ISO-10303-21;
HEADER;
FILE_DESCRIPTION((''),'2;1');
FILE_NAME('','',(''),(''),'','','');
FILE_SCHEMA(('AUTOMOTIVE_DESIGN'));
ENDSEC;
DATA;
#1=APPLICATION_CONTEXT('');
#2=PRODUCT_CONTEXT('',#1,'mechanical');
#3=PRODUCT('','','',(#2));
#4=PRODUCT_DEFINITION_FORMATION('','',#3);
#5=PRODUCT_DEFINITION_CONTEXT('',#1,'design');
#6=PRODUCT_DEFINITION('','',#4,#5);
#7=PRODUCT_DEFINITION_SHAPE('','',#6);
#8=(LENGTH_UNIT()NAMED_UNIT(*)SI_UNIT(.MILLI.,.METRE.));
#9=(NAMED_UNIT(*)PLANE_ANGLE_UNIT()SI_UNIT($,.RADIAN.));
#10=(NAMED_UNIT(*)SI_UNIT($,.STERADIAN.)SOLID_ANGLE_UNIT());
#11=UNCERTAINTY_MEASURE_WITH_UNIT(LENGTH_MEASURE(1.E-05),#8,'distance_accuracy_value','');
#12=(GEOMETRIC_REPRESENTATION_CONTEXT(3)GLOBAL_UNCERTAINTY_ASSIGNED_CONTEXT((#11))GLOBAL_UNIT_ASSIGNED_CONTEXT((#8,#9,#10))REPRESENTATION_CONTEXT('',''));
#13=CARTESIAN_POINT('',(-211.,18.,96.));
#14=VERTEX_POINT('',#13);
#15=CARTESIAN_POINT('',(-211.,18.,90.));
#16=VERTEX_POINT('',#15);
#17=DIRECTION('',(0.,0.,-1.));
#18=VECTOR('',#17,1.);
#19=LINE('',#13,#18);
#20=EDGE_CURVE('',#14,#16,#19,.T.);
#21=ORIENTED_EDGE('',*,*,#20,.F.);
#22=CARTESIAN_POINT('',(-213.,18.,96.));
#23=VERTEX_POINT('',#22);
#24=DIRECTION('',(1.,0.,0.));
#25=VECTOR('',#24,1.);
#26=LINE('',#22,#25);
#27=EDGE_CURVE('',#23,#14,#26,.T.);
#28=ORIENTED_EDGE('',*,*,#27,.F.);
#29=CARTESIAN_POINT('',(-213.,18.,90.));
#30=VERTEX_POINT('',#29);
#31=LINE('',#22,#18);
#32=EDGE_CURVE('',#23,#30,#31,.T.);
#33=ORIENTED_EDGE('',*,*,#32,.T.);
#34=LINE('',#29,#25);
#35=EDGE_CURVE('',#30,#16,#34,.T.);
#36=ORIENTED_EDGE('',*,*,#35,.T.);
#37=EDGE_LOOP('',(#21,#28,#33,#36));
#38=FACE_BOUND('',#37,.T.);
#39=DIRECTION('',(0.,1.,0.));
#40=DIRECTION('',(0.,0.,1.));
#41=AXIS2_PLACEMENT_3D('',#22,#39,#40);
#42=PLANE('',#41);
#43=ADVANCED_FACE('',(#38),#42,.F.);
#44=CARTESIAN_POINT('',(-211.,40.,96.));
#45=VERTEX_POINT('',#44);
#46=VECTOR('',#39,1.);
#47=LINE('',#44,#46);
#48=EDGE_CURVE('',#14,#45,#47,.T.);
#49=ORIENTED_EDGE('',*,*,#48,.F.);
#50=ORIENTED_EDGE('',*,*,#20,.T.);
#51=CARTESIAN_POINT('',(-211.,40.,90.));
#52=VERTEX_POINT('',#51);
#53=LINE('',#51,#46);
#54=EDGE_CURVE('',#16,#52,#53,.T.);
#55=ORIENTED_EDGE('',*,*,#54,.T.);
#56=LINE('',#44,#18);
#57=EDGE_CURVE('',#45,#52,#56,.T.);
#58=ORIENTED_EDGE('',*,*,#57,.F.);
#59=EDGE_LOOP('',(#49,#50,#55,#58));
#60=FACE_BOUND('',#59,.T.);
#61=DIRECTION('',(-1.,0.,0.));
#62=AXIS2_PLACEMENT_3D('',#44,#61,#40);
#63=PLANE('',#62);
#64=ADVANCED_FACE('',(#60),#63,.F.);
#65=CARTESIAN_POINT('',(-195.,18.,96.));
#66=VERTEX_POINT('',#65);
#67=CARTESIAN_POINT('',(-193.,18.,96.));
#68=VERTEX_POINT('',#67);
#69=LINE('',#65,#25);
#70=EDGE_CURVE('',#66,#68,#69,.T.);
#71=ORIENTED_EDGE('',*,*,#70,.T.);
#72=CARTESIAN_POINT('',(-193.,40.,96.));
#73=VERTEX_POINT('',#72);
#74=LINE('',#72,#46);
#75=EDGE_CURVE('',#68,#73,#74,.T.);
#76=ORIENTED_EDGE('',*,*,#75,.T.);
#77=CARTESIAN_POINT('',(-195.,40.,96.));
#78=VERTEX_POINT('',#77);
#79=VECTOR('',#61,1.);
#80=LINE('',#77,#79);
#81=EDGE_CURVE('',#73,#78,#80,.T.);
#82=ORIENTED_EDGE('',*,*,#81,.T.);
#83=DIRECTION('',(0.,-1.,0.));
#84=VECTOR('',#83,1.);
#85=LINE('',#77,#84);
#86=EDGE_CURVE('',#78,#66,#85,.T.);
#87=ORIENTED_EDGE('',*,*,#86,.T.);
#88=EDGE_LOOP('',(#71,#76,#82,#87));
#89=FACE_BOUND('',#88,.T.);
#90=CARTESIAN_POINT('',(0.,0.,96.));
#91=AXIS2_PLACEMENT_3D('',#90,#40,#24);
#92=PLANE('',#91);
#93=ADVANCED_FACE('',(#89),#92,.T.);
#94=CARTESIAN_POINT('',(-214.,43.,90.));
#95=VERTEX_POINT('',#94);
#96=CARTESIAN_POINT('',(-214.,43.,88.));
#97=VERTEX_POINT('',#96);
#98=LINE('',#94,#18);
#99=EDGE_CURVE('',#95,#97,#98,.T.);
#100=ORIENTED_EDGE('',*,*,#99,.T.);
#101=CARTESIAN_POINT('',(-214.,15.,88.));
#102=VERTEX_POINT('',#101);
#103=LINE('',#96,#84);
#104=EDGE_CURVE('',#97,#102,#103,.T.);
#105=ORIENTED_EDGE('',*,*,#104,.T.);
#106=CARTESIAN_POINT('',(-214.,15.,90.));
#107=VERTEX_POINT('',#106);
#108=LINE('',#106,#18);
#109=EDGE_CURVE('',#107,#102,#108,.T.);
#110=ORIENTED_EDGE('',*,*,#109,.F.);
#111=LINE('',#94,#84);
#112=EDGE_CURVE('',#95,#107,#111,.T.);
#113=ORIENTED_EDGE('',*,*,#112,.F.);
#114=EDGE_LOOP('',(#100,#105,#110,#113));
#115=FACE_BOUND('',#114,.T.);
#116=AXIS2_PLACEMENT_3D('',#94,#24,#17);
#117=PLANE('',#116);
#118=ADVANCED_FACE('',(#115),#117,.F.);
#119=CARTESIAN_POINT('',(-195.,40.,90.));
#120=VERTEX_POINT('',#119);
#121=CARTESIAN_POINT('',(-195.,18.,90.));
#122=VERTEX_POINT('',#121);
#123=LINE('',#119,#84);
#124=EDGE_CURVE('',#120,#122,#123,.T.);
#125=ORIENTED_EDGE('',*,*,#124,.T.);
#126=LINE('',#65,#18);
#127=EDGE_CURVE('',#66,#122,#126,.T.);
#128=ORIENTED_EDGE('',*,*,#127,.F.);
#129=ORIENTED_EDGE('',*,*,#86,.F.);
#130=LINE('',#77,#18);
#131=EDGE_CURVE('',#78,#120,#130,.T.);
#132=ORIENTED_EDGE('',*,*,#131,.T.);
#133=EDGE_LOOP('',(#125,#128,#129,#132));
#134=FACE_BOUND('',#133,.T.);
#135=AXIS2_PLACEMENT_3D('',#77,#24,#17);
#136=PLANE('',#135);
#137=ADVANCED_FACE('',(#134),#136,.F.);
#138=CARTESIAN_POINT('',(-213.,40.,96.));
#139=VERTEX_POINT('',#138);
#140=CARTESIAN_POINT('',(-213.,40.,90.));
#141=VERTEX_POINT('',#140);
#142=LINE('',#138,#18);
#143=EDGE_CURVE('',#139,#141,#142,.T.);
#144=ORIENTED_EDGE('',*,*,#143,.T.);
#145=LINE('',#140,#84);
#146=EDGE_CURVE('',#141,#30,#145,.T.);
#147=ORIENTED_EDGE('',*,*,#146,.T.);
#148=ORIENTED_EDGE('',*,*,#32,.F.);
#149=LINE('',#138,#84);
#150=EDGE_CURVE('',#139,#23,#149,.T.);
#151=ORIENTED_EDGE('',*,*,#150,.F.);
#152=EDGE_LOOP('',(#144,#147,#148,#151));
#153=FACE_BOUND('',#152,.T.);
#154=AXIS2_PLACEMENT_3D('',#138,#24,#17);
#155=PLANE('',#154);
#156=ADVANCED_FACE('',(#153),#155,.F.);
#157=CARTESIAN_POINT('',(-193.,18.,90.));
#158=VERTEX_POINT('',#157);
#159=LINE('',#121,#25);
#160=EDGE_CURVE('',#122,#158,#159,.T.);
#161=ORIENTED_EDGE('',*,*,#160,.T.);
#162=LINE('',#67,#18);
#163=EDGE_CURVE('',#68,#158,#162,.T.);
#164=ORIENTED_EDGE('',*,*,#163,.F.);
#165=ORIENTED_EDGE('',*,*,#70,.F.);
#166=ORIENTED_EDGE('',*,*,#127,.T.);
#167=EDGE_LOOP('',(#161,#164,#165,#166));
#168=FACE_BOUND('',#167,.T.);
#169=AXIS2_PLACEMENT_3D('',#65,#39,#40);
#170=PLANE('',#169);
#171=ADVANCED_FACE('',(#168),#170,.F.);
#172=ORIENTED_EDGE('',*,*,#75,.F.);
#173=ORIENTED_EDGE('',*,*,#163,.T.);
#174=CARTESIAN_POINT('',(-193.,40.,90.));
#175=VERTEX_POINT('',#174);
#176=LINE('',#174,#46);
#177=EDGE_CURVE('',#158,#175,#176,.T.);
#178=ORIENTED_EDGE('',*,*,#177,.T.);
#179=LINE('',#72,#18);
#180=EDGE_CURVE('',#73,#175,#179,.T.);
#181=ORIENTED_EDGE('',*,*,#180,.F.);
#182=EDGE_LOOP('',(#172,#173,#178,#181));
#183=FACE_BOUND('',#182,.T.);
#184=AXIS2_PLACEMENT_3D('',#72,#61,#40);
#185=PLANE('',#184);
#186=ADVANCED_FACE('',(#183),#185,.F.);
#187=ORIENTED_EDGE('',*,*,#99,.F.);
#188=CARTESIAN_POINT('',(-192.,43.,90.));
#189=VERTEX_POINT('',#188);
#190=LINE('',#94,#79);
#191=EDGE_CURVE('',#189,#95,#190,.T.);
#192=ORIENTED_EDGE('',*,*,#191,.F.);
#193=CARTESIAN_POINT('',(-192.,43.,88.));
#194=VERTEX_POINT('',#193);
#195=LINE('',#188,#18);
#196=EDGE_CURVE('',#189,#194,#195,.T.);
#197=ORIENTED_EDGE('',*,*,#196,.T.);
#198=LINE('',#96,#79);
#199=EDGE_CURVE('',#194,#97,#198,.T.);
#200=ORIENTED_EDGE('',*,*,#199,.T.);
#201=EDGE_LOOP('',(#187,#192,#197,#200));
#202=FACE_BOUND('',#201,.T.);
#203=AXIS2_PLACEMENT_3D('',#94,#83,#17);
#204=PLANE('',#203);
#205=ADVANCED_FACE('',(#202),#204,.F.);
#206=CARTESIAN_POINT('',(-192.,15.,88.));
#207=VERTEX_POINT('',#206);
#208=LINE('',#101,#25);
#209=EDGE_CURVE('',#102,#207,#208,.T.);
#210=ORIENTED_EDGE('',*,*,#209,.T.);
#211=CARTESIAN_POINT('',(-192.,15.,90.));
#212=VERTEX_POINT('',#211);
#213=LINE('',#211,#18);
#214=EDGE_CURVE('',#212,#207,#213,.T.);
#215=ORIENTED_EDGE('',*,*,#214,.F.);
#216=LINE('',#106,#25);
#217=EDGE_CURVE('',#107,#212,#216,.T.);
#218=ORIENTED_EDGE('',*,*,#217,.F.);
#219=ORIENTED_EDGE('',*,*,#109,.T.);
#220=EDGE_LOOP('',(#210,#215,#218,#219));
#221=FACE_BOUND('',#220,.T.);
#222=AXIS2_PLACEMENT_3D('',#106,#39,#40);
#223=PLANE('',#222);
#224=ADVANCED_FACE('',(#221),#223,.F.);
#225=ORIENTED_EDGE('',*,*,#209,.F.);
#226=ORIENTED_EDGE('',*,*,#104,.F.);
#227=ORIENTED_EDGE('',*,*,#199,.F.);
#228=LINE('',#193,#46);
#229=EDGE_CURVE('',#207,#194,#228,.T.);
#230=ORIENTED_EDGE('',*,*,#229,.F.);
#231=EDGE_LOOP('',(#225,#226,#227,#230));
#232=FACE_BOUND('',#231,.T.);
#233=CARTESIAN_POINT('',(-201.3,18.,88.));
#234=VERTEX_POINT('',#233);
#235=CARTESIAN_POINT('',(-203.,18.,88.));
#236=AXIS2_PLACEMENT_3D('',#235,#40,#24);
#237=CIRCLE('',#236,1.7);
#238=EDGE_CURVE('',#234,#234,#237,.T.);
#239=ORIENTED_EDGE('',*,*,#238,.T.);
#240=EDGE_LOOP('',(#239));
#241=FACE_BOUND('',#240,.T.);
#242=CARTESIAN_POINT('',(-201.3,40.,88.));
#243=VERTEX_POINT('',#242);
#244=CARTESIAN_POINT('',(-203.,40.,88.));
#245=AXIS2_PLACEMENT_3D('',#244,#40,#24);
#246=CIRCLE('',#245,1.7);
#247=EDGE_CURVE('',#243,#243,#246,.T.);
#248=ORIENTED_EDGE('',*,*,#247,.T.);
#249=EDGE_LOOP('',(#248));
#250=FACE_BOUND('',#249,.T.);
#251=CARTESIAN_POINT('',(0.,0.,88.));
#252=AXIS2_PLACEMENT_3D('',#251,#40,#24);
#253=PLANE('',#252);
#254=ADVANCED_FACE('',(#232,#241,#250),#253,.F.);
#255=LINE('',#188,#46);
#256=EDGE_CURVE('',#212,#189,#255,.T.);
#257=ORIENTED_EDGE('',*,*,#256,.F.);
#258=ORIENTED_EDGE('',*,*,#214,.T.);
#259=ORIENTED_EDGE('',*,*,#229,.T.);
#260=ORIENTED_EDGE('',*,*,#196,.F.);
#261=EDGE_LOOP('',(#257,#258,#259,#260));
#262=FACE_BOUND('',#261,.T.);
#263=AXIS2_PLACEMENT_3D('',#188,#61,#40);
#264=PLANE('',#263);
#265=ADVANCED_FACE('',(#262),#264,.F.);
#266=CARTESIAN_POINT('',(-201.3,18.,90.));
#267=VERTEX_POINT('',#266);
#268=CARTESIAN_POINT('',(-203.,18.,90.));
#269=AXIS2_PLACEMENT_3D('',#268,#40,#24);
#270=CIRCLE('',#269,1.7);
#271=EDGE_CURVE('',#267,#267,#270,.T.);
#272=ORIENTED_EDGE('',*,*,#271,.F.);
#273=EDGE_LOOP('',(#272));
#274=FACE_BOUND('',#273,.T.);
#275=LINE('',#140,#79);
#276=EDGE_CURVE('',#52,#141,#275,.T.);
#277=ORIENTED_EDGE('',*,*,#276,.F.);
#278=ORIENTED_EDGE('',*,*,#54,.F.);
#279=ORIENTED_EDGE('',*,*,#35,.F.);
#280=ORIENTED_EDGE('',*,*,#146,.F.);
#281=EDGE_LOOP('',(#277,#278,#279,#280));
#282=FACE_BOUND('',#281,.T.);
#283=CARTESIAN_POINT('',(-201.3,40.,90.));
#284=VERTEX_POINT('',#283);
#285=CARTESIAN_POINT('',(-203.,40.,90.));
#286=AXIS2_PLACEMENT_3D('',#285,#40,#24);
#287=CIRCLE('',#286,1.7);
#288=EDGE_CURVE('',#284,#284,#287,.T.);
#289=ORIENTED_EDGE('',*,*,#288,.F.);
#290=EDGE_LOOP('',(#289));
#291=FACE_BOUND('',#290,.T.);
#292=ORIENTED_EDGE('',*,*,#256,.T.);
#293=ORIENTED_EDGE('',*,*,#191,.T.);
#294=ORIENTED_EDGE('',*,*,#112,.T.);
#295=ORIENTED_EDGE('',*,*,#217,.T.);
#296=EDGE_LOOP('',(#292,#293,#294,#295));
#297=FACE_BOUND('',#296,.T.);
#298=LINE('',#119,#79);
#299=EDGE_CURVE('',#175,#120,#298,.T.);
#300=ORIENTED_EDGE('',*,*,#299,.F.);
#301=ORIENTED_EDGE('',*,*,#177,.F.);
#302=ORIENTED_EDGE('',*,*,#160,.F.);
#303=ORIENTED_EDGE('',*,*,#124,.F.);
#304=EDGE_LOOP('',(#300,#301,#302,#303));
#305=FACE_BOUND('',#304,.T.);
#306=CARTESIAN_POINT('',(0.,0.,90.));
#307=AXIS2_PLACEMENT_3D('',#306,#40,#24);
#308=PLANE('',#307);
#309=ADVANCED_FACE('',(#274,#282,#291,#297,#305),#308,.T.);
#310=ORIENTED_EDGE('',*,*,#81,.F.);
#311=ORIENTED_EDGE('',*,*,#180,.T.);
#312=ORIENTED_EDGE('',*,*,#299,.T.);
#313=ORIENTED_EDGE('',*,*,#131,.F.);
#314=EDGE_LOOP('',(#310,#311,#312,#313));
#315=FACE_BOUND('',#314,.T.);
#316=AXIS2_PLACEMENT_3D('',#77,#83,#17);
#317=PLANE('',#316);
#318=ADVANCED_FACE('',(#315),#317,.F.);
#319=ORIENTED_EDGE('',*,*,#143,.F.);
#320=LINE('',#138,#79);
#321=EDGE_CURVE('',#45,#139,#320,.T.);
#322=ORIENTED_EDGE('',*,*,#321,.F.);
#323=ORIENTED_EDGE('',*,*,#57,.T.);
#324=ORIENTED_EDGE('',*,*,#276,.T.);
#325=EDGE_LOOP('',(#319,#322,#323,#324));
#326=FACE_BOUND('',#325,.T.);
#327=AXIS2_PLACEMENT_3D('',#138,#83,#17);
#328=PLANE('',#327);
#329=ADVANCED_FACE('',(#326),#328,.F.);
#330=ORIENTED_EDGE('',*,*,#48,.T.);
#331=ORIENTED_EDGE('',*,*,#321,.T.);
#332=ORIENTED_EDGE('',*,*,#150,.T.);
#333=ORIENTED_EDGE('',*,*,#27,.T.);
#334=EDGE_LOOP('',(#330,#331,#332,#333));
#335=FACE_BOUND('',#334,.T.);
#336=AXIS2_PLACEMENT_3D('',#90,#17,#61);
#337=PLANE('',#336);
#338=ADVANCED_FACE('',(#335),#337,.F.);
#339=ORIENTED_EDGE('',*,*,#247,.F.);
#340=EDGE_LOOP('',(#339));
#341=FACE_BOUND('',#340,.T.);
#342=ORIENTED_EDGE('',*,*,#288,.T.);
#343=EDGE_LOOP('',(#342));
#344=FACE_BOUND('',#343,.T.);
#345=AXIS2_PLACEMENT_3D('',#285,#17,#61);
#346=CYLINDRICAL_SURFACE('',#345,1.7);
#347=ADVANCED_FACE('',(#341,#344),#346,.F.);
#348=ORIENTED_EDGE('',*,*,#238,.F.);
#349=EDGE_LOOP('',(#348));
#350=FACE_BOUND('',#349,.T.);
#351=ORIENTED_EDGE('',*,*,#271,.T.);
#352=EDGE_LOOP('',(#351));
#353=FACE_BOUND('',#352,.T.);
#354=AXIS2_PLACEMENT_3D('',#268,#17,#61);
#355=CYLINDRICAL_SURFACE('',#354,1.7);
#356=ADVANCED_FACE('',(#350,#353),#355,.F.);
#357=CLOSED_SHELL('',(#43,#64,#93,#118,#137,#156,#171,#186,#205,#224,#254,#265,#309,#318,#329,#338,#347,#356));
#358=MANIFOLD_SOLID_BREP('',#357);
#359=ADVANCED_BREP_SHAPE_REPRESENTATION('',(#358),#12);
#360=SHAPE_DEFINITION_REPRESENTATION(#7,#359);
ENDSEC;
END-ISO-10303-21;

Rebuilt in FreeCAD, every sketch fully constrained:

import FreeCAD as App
import Part
import Sketcher

V = App.Vector
Q = App.Units.Quantity

doc = App.newDocument("Part")
body = doc.addObject("PartDesign::Body", "Body")

# Sketch on XY plane
sketch1 = body.newObject("Sketcher::SketchObject", "Sketch")
sketch1.AttachmentSupport = (doc.getObject("XY_Plane"), [""])
sketch1.MapMode = "FlatFace"
sketch1.AttachmentOffset = App.Placement(V(0, 0, 88), App.Rotation())
sketch1.addGeometry([
    Part.LineSegment(V(-214, 43, 0), V(-214, 15, 0)),  # 0
    Part.LineSegment(V(-214, 15, 0), V(-192, 15, 0)),  # 1
    Part.LineSegment(V(-192, 15, 0), V(-192, 43, 0)),  # 2
    Part.LineSegment(V(-192, 43, 0), V(-214, 43, 0)),  # 3
    Part.Circle(V(-203, 18, 0), V(0, 0, 1), 1.7),  # 4
    Part.Circle(V(-203, 40, 0), V(0, 0, 1), 1.7),  # 5
], False)
sketch1.addConstraint([
    Sketcher.Constraint("Coincident", 0, 2, 1, 1),
    Sketcher.Constraint("Coincident", 1, 2, 2, 1),
    Sketcher.Constraint("Coincident", 2, 2, 3, 1),
    Sketcher.Constraint("Coincident", 3, 2, 0, 1),
    Sketcher.Constraint("Vertical", 0),
    Sketcher.Constraint("Horizontal", 1),
    Sketcher.Constraint("Vertical", 2),
    Sketcher.Constraint("Horizontal", 3),
    Sketcher.Constraint("Equal", 4, 5),
    Sketcher.Constraint("Vertical", 4, 3, 5, 3),
    Sketcher.Constraint("Diameter", 4, Q("3.4 mm")),
    Sketcher.Constraint("DistanceX", 1, 1, 1, 2, Q("22 mm")),
    Sketcher.Constraint("DistanceY", 0, 2, 0, 1, Q("28 mm")),
    Sketcher.Constraint("DistanceX", 4, 3, -1, 1, Q("203 mm")),
    Sketcher.Constraint("DistanceY", -1, 1, 4, 3, Q("18 mm")),
    Sketcher.Constraint("DistanceY", -1, 1, 5, 3, Q("40 mm")),
    Sketcher.Constraint("DistanceX", 0, 2, -1, 1, Q("214 mm")),
    Sketcher.Constraint("DistanceY", -1, 1, 0, 2, Q("15 mm")),
])
pad1 = body.newObject("PartDesign::Pad", "Pad")
pad1.Profile = sketch1
pad1.Length = 2

# Sketch on XY plane
sketch2 = body.newObject("Sketcher::SketchObject", "Sketch001")
sketch2.AttachmentSupport = (doc.getObject("XY_Plane"), [""])
sketch2.MapMode = "FlatFace"
sketch2.AttachmentOffset = App.Placement(V(0, 0, 90), App.Rotation())
sketch2.addGeometry([
    Part.LineSegment(V(-195, 40, 0), V(-195, 18, 0)),  # 0
    Part.LineSegment(V(-195, 18, 0), V(-193, 18, 0)),  # 1
    Part.LineSegment(V(-193, 18, 0), V(-193, 40, 0)),  # 2
    Part.LineSegment(V(-193, 40, 0), V(-195, 40, 0)),  # 3
    Part.LineSegment(V(-213, 40, 0), V(-213, 18, 0)),  # 4
    Part.LineSegment(V(-213, 18, 0), V(-211, 18, 0)),  # 5
    Part.LineSegment(V(-211, 18, 0), V(-211, 40, 0)),  # 6
    Part.LineSegment(V(-211, 40, 0), V(-213, 40, 0)),  # 7
], False)
sketch2.addConstraint([
    Sketcher.Constraint("Coincident", 0, 2, 1, 1),
    Sketcher.Constraint("Coincident", 1, 2, 2, 1),
    Sketcher.Constraint("Coincident", 2, 2, 3, 1),
    Sketcher.Constraint("Coincident", 3, 2, 0, 1),
    Sketcher.Constraint("Coincident", 4, 2, 5, 1),
    Sketcher.Constraint("Coincident", 5, 2, 6, 1),
    Sketcher.Constraint("Coincident", 6, 2, 7, 1),
    Sketcher.Constraint("Coincident", 7, 2, 4, 1),
    Sketcher.Constraint("Vertical", 0),
    Sketcher.Constraint("Horizontal", 1),
    Sketcher.Constraint("Vertical", 2),
    Sketcher.Constraint("Horizontal", 3),
    Sketcher.Constraint("Vertical", 4),
    Sketcher.Constraint("Horizontal", 5),
    Sketcher.Constraint("Vertical", 6),
    Sketcher.Constraint("Horizontal", 7),
    Sketcher.Constraint("Horizontal", 1, 2, 4, 2),
    Sketcher.Constraint("Horizontal", 3, 2, 6, 2),
    Sketcher.Constraint("Equal", 3, 5),
    Sketcher.Constraint("DistanceX", 1, 1, 1, 2, Q("2 mm")),
    Sketcher.Constraint("DistanceY", 0, 2, 0, 1, Q("22 mm")),
    Sketcher.Constraint("DistanceX", 0, 2, -1, 1, Q("195 mm")),
    Sketcher.Constraint("DistanceY", -1, 1, 0, 2, Q("18 mm")),
    Sketcher.Constraint("DistanceX", 4, 2, -1, 1, Q("213 mm")),
])
pad2 = body.newObject("PartDesign::Pad", "Pad001")
pad2.Profile = sketch2
pad2.Length = 6

doc.recompute()
